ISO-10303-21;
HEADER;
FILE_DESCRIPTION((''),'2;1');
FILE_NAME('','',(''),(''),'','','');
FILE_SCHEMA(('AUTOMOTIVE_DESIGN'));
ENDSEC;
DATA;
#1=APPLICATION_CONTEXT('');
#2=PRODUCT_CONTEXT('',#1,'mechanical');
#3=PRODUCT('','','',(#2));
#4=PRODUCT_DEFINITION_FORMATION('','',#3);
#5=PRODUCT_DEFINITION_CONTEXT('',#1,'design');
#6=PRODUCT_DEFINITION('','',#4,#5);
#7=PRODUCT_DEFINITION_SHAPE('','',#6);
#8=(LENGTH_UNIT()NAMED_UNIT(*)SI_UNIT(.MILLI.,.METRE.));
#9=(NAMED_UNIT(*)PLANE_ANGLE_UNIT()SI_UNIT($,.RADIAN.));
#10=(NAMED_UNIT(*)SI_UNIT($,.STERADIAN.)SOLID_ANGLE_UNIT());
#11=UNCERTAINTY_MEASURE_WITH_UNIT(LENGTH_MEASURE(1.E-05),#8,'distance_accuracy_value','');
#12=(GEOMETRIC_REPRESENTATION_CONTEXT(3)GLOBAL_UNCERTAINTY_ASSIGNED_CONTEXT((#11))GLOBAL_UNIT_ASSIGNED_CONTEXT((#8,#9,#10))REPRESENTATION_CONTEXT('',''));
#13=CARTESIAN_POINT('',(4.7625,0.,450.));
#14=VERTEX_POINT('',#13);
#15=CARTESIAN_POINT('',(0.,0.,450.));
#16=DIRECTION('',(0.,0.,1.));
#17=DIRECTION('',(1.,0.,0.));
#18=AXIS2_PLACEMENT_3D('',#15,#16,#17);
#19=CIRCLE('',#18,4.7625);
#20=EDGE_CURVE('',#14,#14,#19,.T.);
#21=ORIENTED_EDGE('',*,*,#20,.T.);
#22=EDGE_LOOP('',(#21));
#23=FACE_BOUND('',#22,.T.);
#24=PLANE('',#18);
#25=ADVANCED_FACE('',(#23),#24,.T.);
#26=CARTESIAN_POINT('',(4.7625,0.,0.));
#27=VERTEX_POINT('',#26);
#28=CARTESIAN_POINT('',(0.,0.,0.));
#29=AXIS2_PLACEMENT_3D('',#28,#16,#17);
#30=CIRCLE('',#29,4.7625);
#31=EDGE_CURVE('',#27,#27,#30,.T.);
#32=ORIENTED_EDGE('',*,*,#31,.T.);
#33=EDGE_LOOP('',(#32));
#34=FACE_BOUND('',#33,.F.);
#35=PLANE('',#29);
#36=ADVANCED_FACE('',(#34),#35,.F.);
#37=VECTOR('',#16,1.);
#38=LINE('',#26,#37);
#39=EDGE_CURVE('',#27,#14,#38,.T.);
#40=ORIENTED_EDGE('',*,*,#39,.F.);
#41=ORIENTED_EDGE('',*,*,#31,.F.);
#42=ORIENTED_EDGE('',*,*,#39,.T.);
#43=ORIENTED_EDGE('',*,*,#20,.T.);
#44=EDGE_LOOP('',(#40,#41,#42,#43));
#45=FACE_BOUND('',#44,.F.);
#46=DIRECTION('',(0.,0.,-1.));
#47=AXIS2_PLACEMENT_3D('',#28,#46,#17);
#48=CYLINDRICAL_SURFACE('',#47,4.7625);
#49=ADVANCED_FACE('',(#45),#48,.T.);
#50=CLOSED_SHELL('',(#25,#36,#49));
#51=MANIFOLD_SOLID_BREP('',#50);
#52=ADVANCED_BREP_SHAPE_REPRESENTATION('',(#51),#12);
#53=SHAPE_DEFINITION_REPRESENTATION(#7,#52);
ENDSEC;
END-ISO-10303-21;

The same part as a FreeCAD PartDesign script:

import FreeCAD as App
import Part
import Sketcher

doc = App.newDocument("Part")
body = doc.addObject("PartDesign::Body", "Body")

sketch1 = body.newObject("Sketcher::SketchObject", "Sketch")
sketch1.AttachmentSupport = (doc.getObject("XY_Plane"), [""])
sketch1.MapMode = "FlatFace"
sketch1.addGeometry(Part.Circle(App.Vector(0, 0, 0), App.Vector(0, 0, 1), 4.8), False)
sketch1.addConstraint(Sketcher.Constraint("Coincident", 0, 3, -1, 1))
sketch1.addConstraint(Sketcher.Constraint("Diameter", 0, 9.525))
pad1 = body.newObject("PartDesign::Pad", "Pad")
pad1.Profile = sketch1
pad1.Length = 450

doc.recompute()
